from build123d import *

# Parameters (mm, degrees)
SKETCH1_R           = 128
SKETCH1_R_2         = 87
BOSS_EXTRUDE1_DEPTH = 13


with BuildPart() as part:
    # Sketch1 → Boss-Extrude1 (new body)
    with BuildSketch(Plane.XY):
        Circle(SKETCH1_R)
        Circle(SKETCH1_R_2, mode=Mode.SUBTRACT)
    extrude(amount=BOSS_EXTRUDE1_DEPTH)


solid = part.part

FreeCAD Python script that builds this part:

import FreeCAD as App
import Part
import Sketcher

doc = App.newDocument("Part")
params = doc.addObject("Spreadsheet::Sheet", "Params")
for row, (alias, value) in enumerate([
    ("sketch1_diameter", "256 mm"),
    ("sketch1_diameter2", "174 mm"),
    ("pad1_length", "13 mm"),
], start=1):
    params.set(f"A{row}", alias)
    params.set(f"B{row}", "=" + value)
    params.setAlias(f"B{row}", alias)

body = doc.addObject("PartDesign::Body", "Body")

sketch1 = body.newObject("Sketcher::SketchObject", "Sketch")
sketch1.AttachmentSupport = (doc.getObject("XY_Plane"), [""])
sketch1.MapMode = "FlatFace"
sketch1.addGeometry([
    Part.Circle(App.Vector(0, 0, 0), App.Vector(0, 0, 1), 128),
    Part.Circle(App.Vector(0, 0, 0), App.Vector(0, 0, 1), 87),
], False)
sketch1.addConstraint([
    Sketcher.Constraint("Coincident", 0, 3, -1, 1),
    Sketcher.Constraint("Coincident", 1, 3, -1, 1),
    Sketcher.Constraint("Diameter", 0, 256.0),
    Sketcher.Constraint("Diameter", 1, 174.0),
])
sketch1.setExpression("Constraints[2]", "Params.sketch1_diameter")
sketch1.setExpression("Constraints[3]", "Params.sketch1_diameter2")
pad1 = body.newObject("PartDesign::Pad", "Pad")
pad1.Profile = sketch1
pad1.setExpression("Length", "Params.pad1_length")

doc.recompute()
